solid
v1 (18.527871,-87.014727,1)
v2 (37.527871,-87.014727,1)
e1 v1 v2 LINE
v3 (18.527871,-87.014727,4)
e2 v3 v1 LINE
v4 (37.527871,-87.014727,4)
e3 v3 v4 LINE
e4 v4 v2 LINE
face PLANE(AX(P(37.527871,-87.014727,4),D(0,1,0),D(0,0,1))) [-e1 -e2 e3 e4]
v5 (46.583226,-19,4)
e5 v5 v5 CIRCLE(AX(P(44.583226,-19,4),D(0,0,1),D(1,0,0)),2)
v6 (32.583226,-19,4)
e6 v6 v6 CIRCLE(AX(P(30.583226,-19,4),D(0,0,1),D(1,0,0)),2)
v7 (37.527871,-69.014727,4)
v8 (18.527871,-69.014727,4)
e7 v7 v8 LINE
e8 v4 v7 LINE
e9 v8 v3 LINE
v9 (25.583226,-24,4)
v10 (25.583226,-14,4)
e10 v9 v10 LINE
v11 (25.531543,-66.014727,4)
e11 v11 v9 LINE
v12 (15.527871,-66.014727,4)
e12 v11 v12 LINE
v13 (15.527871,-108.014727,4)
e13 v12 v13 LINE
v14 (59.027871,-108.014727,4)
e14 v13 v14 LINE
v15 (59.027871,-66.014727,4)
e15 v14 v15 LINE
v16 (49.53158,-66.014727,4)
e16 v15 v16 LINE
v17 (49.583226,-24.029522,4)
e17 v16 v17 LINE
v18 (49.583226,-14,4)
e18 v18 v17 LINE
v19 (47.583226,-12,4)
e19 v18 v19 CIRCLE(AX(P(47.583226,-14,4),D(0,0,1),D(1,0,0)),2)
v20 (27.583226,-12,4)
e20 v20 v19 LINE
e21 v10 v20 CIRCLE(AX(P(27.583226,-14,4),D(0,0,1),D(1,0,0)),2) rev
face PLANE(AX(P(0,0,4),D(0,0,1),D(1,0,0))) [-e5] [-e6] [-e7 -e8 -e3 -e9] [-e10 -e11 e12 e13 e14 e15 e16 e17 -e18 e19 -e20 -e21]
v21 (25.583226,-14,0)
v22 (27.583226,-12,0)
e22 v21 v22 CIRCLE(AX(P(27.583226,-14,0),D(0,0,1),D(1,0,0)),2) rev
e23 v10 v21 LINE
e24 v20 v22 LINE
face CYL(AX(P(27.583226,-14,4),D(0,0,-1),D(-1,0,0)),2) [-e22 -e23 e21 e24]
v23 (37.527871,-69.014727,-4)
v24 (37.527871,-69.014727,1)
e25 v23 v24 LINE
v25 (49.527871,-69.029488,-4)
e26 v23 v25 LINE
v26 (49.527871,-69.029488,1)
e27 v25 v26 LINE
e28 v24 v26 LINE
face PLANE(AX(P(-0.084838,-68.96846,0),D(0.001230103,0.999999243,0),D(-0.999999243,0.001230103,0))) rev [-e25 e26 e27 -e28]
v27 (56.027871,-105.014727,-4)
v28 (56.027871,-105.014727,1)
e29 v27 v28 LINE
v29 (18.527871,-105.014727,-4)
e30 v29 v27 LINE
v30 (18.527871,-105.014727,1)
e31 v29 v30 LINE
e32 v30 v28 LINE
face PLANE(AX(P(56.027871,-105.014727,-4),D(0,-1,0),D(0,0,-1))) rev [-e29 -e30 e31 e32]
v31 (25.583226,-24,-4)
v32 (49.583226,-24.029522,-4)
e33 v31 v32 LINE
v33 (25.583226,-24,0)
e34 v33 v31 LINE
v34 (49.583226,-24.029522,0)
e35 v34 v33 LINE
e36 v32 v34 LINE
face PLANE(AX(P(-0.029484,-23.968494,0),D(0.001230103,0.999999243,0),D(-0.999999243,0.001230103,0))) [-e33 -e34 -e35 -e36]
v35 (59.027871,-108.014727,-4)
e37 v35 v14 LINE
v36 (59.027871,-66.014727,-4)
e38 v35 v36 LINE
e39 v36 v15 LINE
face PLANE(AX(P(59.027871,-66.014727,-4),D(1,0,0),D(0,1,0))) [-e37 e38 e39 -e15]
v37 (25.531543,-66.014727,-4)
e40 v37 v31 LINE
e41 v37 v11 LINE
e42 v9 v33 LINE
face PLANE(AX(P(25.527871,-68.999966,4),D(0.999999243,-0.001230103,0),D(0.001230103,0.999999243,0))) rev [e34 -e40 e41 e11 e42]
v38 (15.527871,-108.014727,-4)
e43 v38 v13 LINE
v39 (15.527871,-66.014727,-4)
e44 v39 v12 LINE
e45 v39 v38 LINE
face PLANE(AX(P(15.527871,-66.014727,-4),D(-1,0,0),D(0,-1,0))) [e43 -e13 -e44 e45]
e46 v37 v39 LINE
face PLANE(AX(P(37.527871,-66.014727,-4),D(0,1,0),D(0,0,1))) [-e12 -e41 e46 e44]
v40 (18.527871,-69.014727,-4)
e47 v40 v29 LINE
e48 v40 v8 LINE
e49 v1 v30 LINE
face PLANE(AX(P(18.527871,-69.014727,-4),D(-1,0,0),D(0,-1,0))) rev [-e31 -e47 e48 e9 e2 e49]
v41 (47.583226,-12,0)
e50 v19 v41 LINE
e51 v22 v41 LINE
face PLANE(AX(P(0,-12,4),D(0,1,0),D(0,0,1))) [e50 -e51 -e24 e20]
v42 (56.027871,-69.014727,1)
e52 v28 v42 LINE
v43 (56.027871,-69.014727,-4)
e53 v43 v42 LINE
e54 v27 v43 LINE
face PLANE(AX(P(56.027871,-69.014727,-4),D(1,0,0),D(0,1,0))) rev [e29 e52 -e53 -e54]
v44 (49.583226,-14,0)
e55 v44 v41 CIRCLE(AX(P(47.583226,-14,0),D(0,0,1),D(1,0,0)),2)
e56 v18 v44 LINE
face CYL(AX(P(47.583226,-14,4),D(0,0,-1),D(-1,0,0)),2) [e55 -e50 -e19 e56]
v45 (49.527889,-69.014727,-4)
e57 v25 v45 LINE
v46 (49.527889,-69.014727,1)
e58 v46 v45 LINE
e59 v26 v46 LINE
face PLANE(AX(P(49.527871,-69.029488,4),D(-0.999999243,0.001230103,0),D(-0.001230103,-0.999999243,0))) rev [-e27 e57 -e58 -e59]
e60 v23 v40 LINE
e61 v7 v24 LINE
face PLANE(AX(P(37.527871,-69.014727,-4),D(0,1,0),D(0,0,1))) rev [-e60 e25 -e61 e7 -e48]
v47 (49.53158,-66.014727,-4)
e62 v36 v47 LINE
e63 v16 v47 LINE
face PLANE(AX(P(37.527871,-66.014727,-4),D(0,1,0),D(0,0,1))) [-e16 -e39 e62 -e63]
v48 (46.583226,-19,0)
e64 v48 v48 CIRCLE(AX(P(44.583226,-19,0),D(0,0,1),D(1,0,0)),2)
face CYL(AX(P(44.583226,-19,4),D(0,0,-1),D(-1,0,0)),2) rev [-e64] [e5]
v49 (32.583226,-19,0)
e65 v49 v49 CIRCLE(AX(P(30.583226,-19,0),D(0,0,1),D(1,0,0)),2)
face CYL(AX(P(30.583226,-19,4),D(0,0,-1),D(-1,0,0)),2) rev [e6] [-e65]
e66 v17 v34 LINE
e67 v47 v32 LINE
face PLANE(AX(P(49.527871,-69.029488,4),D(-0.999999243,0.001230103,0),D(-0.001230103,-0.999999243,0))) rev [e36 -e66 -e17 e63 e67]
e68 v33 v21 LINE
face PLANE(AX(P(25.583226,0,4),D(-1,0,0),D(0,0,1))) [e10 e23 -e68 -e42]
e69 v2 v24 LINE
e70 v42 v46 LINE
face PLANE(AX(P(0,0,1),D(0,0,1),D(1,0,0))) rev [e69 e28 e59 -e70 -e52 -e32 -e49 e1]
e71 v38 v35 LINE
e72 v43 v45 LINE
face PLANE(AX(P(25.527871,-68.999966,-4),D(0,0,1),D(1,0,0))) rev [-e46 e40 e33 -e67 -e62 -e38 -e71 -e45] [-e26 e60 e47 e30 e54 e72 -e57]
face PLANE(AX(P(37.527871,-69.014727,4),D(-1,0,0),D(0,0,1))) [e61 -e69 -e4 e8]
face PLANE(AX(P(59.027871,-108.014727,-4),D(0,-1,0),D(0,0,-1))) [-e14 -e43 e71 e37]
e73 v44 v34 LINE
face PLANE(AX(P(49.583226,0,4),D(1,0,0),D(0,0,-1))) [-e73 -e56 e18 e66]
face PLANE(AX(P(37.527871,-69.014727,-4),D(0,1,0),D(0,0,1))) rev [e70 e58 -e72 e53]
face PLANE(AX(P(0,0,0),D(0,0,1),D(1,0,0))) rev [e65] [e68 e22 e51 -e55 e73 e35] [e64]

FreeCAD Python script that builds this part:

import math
import FreeCAD as App
import Part
import Sketcher
Q = App.Units.Quantity


def add_polygon(sketch, points):
    """Adds a closed chain of lines whose ends are joined by coincident constraints."""
    first, n = sketch.GeometryCount, len(points)
    for a, b in zip(points, points[1:] + points[:1]):
        sketch.addGeometry(Part.LineSegment(App.Vector(*a, 0), App.Vector(*b, 0)), False)
    for i in range(n):
        sketch.addConstraint(Sketcher.Constraint("Coincident", first + i, 2, first + (i + 1) % n, 1))

doc = App.newDocument("Part")
body = doc.addObject("PartDesign::Body", "Body")

# Sketch on XY plane
sketch1 = doc.addObject("Sketcher::SketchObject", "Sketch")
body.addObject(sketch1)
sketch1.AttachmentSupport = (doc.XY_Plane, [""])
sketch1.MapMode = "FlatFace"
sketch1.addGeometry(Part.LineSegment(App.Vector(49.6, -24, 0), App.Vector(49.6, -14, 0)), False)
sketch1.addGeometry(Part.ArcOfCircle(Part.Circle(App.Vector(47.6, -14, 0), App.Vector(0, 0, 1), 2), math.radians(0), math.radians(90)), False)
sketch1.addGeometry(Part.LineSegment(App.Vector(47.6, -12, 0), App.Vector(27.6, -12, 0)), False)
sketch1.addGeometry(Part.ArcOfCircle(Part.Circle(App.Vector(27.6, -14, 0), App.Vector(0, 0, 1), 2), math.radians(90), math.radians(180)), False)
sketch1.addGeometry(Part.LineSegment(App.Vector(25.6, -14, 0), App.Vector(25.6, -24, 0)), False)
sketch1.addGeometry(Part.LineSegment(App.Vector(25.6, -24, 0), App.Vector(49.6, -24, 0)), False)
sketch1.addGeometry(Part.Circle(App.Vector(30.6, -19, 0), App.Vector(0, 0, 1), 2), False)
sketch1.addGeometry(Part.Circle(App.Vector(44.6, -19, 0), App.Vector(0, 0, 1), 2), False)
sketch1.addConstraint(Sketcher.Constraint("Tangent", 0, 2, 1, 1))
sketch1.addConstraint(Sketcher.Constraint("Tangent", 1, 2, 2, 1))
sketch1.addConstraint(Sketcher.Constraint("Tangent", 2, 2, 3, 1))
sketch1.addConstraint(Sketcher.Constraint("Tangent", 3, 2, 4, 1))
sketch1.addConstraint(Sketcher.Constraint("Coincident", 4, 2, 5, 1))
sketch1.addConstraint(Sketcher.Constraint("Coincident", 5, 2, 0, 1))
sketch1.addConstraint(Sketcher.Constraint("Vertical", 0))
sketch1.addConstraint(Sketcher.Constraint("Horizontal", 2))
sketch1.addConstraint(Sketcher.Constraint("Vertical", 4))
sketch1.addConstraint(Sketcher.Constraint("Equal", 1, 3))
sketch1.addConstraint(Sketcher.Constraint("Equal", 3, 6))
sketch1.addConstraint(Sketcher.Constraint("Equal", 6, 7))
sketch1.addConstraint(Sketcher.Constraint("Horizontal", 6, 3, 7, 3))
sketch1.addConstraint(Sketcher.Constraint("Diameter", 6, Q("4 mm")))
sketch1.addConstraint(Sketcher.Constraint("DistanceX", 2, 2, 2, 1, Q("20 mm")))
sketch1.addConstraint(Sketcher.Constraint("DistanceY", 4, 2, 4, 1, Q("10 mm")))
sketch1.addConstraint(Sketcher.Constraint("DistanceY", 1, 3, -1, 1, Q("14 mm")))
sketch1.addConstraint(Sketcher.Constraint("DistanceY", 6, 3, -1, 1, Q("19 mm")))
sketch1.addConstraint(Sketcher.Constraint("DistanceX", 3, 3, 6, 3, Q("3 mm")))
sketch1.addConstraint(Sketcher.Constraint("DistanceX", 7, 3, 1, 3, Q("3 mm")))
sketch1.addConstraint(Sketcher.Constraint("DistanceY", 0, 1, 0, 2, Q("10.029522 mm")))
sketch1.addConstraint(Sketcher.Constraint("DistanceX", -1, 1, 1, 3, Q("47.583226 mm")))
pad1 = doc.addObject("PartDesign::Pad", "Pad")
body.addObject(pad1)
pad1.Profile = sketch1
pad1.Length = 4

# Sketch on an angled plane
sketch2 = doc.addObject("Sketcher::SketchObject", "Sketch001")
body.addObject(sketch2)
sketch2.Placement = App.Placement(App.Vector(-0.029484, -23.968494, 0), App.Rotation(App.Vector(0.999999243, -0.001230103, 0), App.Vector(0, 0, 0.999999999), App.Vector(-0.001230103, -0.999999243, 0), "ZXY"))
add_polygon(sketch2, [(26, 4), (26, -4), (50, -4), (50, 4)])  # lines 0-3
sketch2.addConstraint(Sketcher.Constraint("Vertical", 0))
sketch2.addConstraint(Sketcher.Constraint("Horizontal", 1))
sketch2.addConstraint(Sketcher.Constraint("Vertical", 2))
sketch2.addConstraint(Sketcher.Constraint("Horizontal", 3))
sketch2.addConstraint(Sketcher.Constraint("DistanceY", 0, 2, 0, 1, Q("8 mm")))
sketch2.addConstraint(Sketcher.Constraint("DistanceY", 0, 2, -1, 1, Q("4 mm")))
sketch2.addConstraint(Sketcher.Constraint("DistanceX", 1, 1, 1, 2, Q("24.000018 mm")))
sketch2.addConstraint(Sketcher.Constraint("DistanceX", -1, 1, 0, 2, Q("25.612729 mm")))
pad2 = doc.addObject("PartDesign::Pad", "Pad001")
body.addObject(pad2)
pad2.Profile = sketch2
pad2.Length = 45

# Sketch on XY plane
sketch3 = doc.addObject("Sketcher::SketchObject", "Sketch002")
body.addObject(sketch3)
sketch3.AttachmentSupport = (doc.XY_Plane, [""])
sketch3.MapMode = "FlatFace"
sketch3.AttachmentOffset = App.Placement(App.Vector(0, 0, 1), App.Rotation())
add_polygon(sketch3, [(16, -66), (16, -108), (59, -108), (59, -66)])  # lines 0-3
add_polygon(sketch3, [(19, -69), (56, -69), (56, -105), (19, -105)])  # lines 4-7
sketch3.addConstraint(Sketcher.Constraint("Vertical", 0))
sketch3.addConstraint(Sketcher.Constraint("Horizontal", 1))
sketch3.addConstraint(Sketcher.Constraint("Vertical", 2))
sketch3.addConstraint(Sketcher.Constraint("Horizontal", 3))
sketch3.addConstraint(Sketcher.Constraint("Horizontal", 4))
sketch3.addConstraint(Sketcher.Constraint("Vertical", 5))
sketch3.addConstraint(Sketcher.Constraint("Horizontal", 6))
sketch3.addConstraint(Sketcher.Constraint("Vertical", 7))
sketch3.addConstraint(Sketcher.Constraint("DistanceY", 0, 2, 0, 1, Q("42 mm")))
sketch3.addConstraint(Sketcher.Constraint("DistanceY", 5, 2, 5, 1, Q("36 mm")))
sketch3.addConstraint(Sketcher.Constraint("DistanceX", 1, 1, 1, 2, Q("43.5 mm")))
sketch3.addConstraint(Sketcher.Constraint("DistanceX", 4, 1, 4, 2, Q("37.5 mm")))
sketch3.addConstraint(Sketcher.Constraint("DistanceX", 4, 2, 2, 2, Q("3 mm")))
sketch3.addConstraint(Sketcher.Constraint("DistanceY", 4, 2, 2, 2, Q("3 mm")))
sketch3.addConstraint(Sketcher.Constraint("DistanceX", -1, 1, 0, 2, Q("15.527871 mm")))
sketch3.addConstraint(Sketcher.Constraint("DistanceY", 0, 2, -1, 1, Q("108.014727 mm")))
pad3 = doc.addObject("PartDesign::Pad", "Pad002")
body.addObject(pad3)
pad3.Profile = sketch3
pad3.Length = 5
pad3.Reversed = True

# Sketch on XY plane
sketch4 = doc.addObject("Sketcher::SketchObject", "Sketch003")
body.addObject(sketch4)
sketch4.AttachmentSupport = (doc.XY_Plane, [""])
sketch4.MapMode = "FlatFace"
sketch4.AttachmentOffset = App.Placement(App.Vector(0, 0, 1), App.Rotation())
add_polygon(sketch4, [(16, -66), (16, -108), (59, -108), (59, -66)])  # lines 0-3
add_polygon(sketch4, [(38, -87), (19, -87), (19, -69), (38, -69)])  # lines 4-7
sketch4.addConstraint(Sketcher.Constraint("Vertical", 0))
sketch4.addConstraint(Sketcher.Constraint("Horizontal", 1))
sketch4.addConstraint(Sketcher.Constraint("Vertical", 2))
sketch4.addConstraint(Sketcher.Constraint("Horizontal", 3))
sketch4.addConstraint(Sketcher.Constraint("Horizontal", 4))
sketch4.addConstraint(Sketcher.Constraint("Vertical", 5))
sketch4.addConstraint(Sketcher.Constraint("Horizontal", 6))
sketch4.addConstraint(Sketcher.Constraint("Vertical", 7))
sketch4.addConstraint(Sketcher.Constraint("DistanceX", 4, 2, 4, 1, Q("19 mm")))
sketch4.addConstraint(Sketcher.Constraint("DistanceY", 0, 2, 0, 1, Q("42 mm")))
sketch4.addConstraint(Sketcher.Constraint("DistanceY", 5, 1, 5, 2, Q("18 mm")))
sketch4.addConstraint(Sketcher.Constraint("DistanceX", 1, 1, 1, 2, Q("43.5 mm")))
sketch4.addConstraint(Sketcher.Constraint("DistanceX", 0, 2, 4, 2, Q("3 mm")))
sketch4.addConstraint(Sketcher.Constraint("DistanceY", 0, 2, 4, 2, Q("21 mm")))
sketch4.addConstraint(Sketcher.Constraint("DistanceX", -1, 1, 0, 2, Q("15.527871 mm")))
sketch4.addConstraint(Sketcher.Constraint("DistanceY", 0, 2, -1, 1, Q("108.014727 mm")))
pad4 = doc.addObject("PartDesign::Pad", "Pad003")
body.addObject(pad4)
pad4.Profile = sketch4
pad4.Length = 3

doc.recompute()
